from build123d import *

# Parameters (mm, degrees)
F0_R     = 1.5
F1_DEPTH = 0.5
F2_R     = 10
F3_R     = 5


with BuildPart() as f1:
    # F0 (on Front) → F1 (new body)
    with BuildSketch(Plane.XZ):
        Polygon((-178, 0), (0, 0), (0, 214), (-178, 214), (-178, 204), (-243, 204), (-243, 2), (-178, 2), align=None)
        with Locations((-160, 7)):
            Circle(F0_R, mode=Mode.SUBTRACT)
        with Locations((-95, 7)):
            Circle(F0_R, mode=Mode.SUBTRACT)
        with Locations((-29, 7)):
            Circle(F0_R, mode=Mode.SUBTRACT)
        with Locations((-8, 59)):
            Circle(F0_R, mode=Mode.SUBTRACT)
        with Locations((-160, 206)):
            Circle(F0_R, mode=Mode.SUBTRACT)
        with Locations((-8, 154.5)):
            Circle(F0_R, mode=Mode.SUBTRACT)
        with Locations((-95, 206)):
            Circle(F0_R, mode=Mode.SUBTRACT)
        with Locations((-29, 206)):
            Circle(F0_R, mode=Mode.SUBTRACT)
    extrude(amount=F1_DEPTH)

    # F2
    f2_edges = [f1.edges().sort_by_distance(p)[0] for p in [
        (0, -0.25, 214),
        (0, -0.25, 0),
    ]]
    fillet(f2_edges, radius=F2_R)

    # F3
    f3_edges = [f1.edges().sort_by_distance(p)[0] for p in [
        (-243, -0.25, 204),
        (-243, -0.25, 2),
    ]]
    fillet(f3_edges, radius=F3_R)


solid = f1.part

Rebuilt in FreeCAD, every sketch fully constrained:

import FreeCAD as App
import Part
import Sketcher


def edges_at(feature, points):
    """Names of the edges that pass closest to the given points."""
    edges = feature.Shape.Edges
    near = lambda p: min(range(len(edges)), key=lambda i: edges[i].distToShape(Part.Vertex(*p))[0])
    return sorted({f"Edge{near(p) + 1}" for p in points})

doc = App.newDocument("Part")
body = doc.addObject("PartDesign::Body", "Body")

sketch1 = doc.addObject("Sketcher::SketchObject", "Sketch")
body.addObject(sketch1)
sketch1.AttachmentSupport = (doc.XZ_Plane, [""])
sketch1.MapMode = "FlatFace"
sketch1.addGeometry([
    Part.LineSegment(App.Vector(-178, 0, 0), App.Vector(0, 0, 0)),
    Part.LineSegment(App.Vector(0, 0, 0), App.Vector(0, 214, 0)),
    Part.LineSegment(App.Vector(0, 214, 0), App.Vector(-178, 214, 0)),
    Part.LineSegment(App.Vector(-178, 214, 0), App.Vector(-178, 204, 0)),
    Part.LineSegment(App.Vector(-178, 204, 0), App.Vector(-243, 204, 0)),
    Part.LineSegment(App.Vector(-243, 204, 0), App.Vector(-243, 2, 0)),
    Part.LineSegment(App.Vector(-243, 2, 0), App.Vector(-178, 2, 0)),
    Part.LineSegment(App.Vector(-178, 2, 0), App.Vector(-178, 0, 0)),
    Part.Circle(App.Vector(-160, 7, 0), App.Vector(0, 0, 1), 1.5),
    Part.Circle(App.Vector(-95, 7, 0), App.Vector(0, 0, 1), 1.5),
    Part.Circle(App.Vector(-29, 7, 0), App.Vector(0, 0, 1), 1.5),
    Part.Circle(App.Vector(-8, 59, 0), App.Vector(0, 0, 1), 1.5),
    Part.Circle(App.Vector(-160, 206, 0), App.Vector(0, 0, 1), 1.5),
    Part.Circle(App.Vector(-95, 206, 0), App.Vector(0, 0, 1), 1.5),
    Part.Circle(App.Vector(-8, 154.5, 0), App.Vector(0, 0, 1), 1.5),
    Part.Circle(App.Vector(-29, 206, 0), App.Vector(0, 0, 1), 1.5),
], False)
sketch1.addConstraint([
    Sketcher.Constraint("Coincident", 0, 2, 1, 1),
    Sketcher.Constraint("Coincident", 1, 2, 2, 1),
    Sketcher.Constraint("Coincident", 2, 2, 3, 1),
    Sketcher.Constraint("Coincident", 3, 2, 4, 1),
    Sketcher.Constraint("Coincident", 4, 2, 5, 1),
    Sketcher.Constraint("Coincident", 5, 2, 6, 1),
    Sketcher.Constraint("Coincident", 6, 2, 7, 1),
    Sketcher.Constraint("Coincident", 7, 2, 0, 1),
    Sketcher.Constraint("Horizontal", 0),
    Sketcher.Constraint("Vertical", 1),
    Sketcher.Constraint("Horizontal", 2),
    Sketcher.Constraint("Vertical", 3),
    Sketcher.Constraint("Horizontal", 4),
    Sketcher.Constraint("Vertical", 5),
    Sketcher.Constraint("Horizontal", 6),
    Sketcher.Constraint("Vertical", 7),
    Sketcher.Constraint("Coincident", 0, 2, -1, 1),
    Sketcher.Constraint("Equal", 8, 9),
    Sketcher.Constraint("Equal", 9, 10),
    Sketcher.Constraint("Equal", 10, 11),
    Sketcher.Constraint("Equal", 11, 12),
    Sketcher.Constraint("Equal", 12, 13),
    Sketcher.Constraint("Equal", 13, 14),
    Sketcher.Constraint("Equal", 14, 15),
    Sketcher.Constraint("Horizontal", 8, 3, 9, 3),
    Sketcher.Constraint("Horizontal", 9, 3, 10, 3),
    Sketcher.Constraint("Horizontal", 12, 3, 13, 3),
    Sketcher.Constraint("Horizontal", 13, 3, 15, 3),
    Sketcher.Constraint("Vertical", 8, 3, 12, 3),
    Sketcher.Constraint("Vertical", 9, 3, 13, 3),
    Sketcher.Constraint("Vertical", 11, 3, 14, 3),
    Sketcher.Constraint("Vertical", 10, 3, 15, 3),
    Sketcher.Constraint("Vertical", 3, 2, 6, 2),
    Sketcher.Constraint("Diameter", 8, 3.0),
    Sketcher.Constraint("DistanceX", 0, 1, 0, 2, 178.0),
    Sketcher.Constraint("DistanceX", 4, 2, 4, 1, 65.0),
    Sketcher.Constraint("DistanceY", 1, 1, 1, 2, 214.0),
    Sketcher.Constraint("DistanceY", 3, 2, 3, 1, 10.0),
    Sketcher.Constraint("DistanceY", 5, 2, 5, 1, 202.0),
    Sketcher.Constraint("DistanceX", 8, 3, -1, 1, 160.0),
    Sketcher.Constraint("DistanceY", -1, 1, 8, 3, 7.0),
    Sketcher.Constraint("DistanceX", 9, 3, -1, 1, 95.0),
    Sketcher.Constraint("DistanceX", 10, 3, -1, 1, 29.0),
    Sketcher.Constraint("DistanceX", 11, 3, -1, 1, 8.0),
    Sketcher.Constraint("DistanceY", -1, 1, 11, 3, 59.0),
    Sketcher.Constraint("DistanceY", -1, 1, 12, 3, 206.0),
    Sketcher.Constraint("DistanceY", -1, 1, 14, 3, 154.5),
])
pad1 = doc.addObject("PartDesign::Pad", "Pad")
body.addObject(pad1)
pad1.Profile = sketch1
pad1.Length = 0.5
doc.recompute()

fillet = doc.addObject("PartDesign::Fillet", "Fillet")
body.addObject(fillet)
fillet.Base = (pad1, edges_at(pad1, [(0, -0.25, 214), (0, -0.25, 0)]))
fillet.Radius = 10
doc.recompute()

fillet2 = doc.addObject("PartDesign::Fillet", "Fillet001")
body.addObject(fillet2)
fillet2.Base = (fillet, edges_at(fillet, [(-243, -0.25, 204), (-243, -0.25, 2)]))
fillet2.Radius = 5

doc.recompute()
